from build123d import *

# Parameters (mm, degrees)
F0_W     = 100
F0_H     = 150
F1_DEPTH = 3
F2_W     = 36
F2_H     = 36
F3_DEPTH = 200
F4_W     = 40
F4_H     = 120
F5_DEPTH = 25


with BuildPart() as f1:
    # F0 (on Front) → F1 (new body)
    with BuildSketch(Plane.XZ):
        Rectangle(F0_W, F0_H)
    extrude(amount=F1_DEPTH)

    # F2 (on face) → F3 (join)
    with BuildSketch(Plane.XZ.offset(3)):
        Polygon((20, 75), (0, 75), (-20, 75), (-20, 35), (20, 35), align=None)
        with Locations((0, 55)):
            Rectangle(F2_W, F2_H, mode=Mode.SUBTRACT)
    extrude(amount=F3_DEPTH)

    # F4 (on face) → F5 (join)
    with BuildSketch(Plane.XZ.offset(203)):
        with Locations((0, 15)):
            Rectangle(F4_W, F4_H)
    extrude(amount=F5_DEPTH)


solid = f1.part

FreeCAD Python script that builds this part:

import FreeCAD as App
import Part
import Sketcher

V = App.Vector
Q = App.Units.Quantity


def add_polygon(sketch, points):
    """Adds a closed chain of lines whose ends are joined by coincident constraints."""
    first, n = sketch.GeometryCount, len(points)
    for a, b in zip(points, points[1:] + points[:1]):
        sketch.addGeometry(Part.LineSegment(App.Vector(*a, 0), App.Vector(*b, 0)), False)
    for i in range(n):
        sketch.addConstraint(Sketcher.Constraint("Coincident", first + i, 2, first + (i + 1) % n, 1))

doc = App.newDocument("Part")
body = doc.addObject("PartDesign::Body", "Body")

sketch1 = body.newObject("Sketcher::SketchObject", "Sketch")
sketch1.AttachmentSupport = (doc.getObject("XZ_Plane"), [""])
sketch1.MapMode = "FlatFace"
add_polygon(sketch1, [(-50, 75), (-50, -75), (50, -75), (50, 75)])
sketch1.addConstraint([
    Sketcher.Constraint("Vertical", 0),
    Sketcher.Constraint("Horizontal", 1),
    Sketcher.Constraint("Vertical", 2),
    Sketcher.Constraint("Horizontal", 3),
    Sketcher.Constraint("Symmetric", 0, 2, 2, 2, -1, 1),
    Sketcher.Constraint("DistanceX", 1, 1, 1, 2, Q("100 mm")),
    Sketcher.Constraint("DistanceY", 0, 2, 0, 1, Q("150 mm")),
])
pad1 = body.newObject("PartDesign::Pad", "Pad")
pad1.Profile = sketch1
pad1.Length = 3

sketch2 = body.newObject("Sketcher::SketchObject", "Sketch001")
sketch2.AttachmentSupport = (doc.getObject("XZ_Plane"), [""])
sketch2.MapMode = "FlatFace"
sketch2.AttachmentOffset = App.Placement(V(0, 0, 3), App.Rotation())
add_polygon(sketch2, [(20, 75), (-20, 75), (-20, 35), (20, 35)])
add_polygon(sketch2, [(18, 37), (-18, 37), (-18, 73), (18, 73)])
sketch2.addConstraint([
    Sketcher.Constraint("Horizontal", 0),
    Sketcher.Constraint("Vertical", 1),
    Sketcher.Constraint("Horizontal", 2),
    Sketcher.Constraint("Vertical", 3),
    Sketcher.Constraint("Horizontal", 4),
    Sketcher.Constraint("Vertical", 5),
    Sketcher.Constraint("Horizontal", 6),
    Sketcher.Constraint("Vertical", 7),
    Sketcher.Constraint("Equal", 2, 1),
    Sketcher.Constraint("Equal", 6, 5),
    Sketcher.Constraint("DistanceX", 0, 2, 0, 1, Q("40 mm")),
    Sketcher.Constraint("DistanceX", 4, 2, 4, 1, Q("36 mm")),
    Sketcher.Constraint("DistanceX", 0, 2, -1, 1, Q("20 mm")),
    Sketcher.Constraint("DistanceY", -1, 1, 0, 2, Q("75 mm")),
    Sketcher.Constraint("DistanceX", 4, 2, -1, 1, Q("18 mm")),
    Sketcher.Constraint("DistanceY", -1, 1, 4, 2, Q("37 mm")),
])
pad2 = body.newObject("PartDesign::Pad", "Pad001")
pad2.Profile = sketch2
pad2.Length = 200

sketch3 = body.newObject("Sketcher::SketchObject", "Sketch002")
sketch3.AttachmentSupport = (doc.getObject("XZ_Plane"), [""])
sketch3.MapMode = "FlatFace"
sketch3.AttachmentOffset = App.Placement(V(0, 0, 203), App.Rotation())
add_polygon(sketch3, [(-20, 75), (-20, -45), (20, -45), (20, 75)])
sketch3.addConstraint([
    Sketcher.Constraint("Vertical", 0),
    Sketcher.Constraint("Horizontal", 1),
    Sketcher.Constraint("Vertical", 2),
    Sketcher.Constraint("Horizontal", 3),
    Sketcher.Constraint("DistanceX", 1, 1, 1, 2, Q("40 mm")),
    Sketcher.Constraint("DistanceY", 0, 2, 0, 1, Q("120 mm")),
    Sketcher.Constraint("DistanceX", 0, 2, -1, 1, Q("20 mm")),
    Sketcher.Constraint("DistanceY", 0, 2, -1, 1, Q("45 mm")),
])
pad3 = body.newObject("PartDesign::Pad", "Pad002")
pad3.Profile = sketch3
pad3.Length = 25

doc.recompute()
